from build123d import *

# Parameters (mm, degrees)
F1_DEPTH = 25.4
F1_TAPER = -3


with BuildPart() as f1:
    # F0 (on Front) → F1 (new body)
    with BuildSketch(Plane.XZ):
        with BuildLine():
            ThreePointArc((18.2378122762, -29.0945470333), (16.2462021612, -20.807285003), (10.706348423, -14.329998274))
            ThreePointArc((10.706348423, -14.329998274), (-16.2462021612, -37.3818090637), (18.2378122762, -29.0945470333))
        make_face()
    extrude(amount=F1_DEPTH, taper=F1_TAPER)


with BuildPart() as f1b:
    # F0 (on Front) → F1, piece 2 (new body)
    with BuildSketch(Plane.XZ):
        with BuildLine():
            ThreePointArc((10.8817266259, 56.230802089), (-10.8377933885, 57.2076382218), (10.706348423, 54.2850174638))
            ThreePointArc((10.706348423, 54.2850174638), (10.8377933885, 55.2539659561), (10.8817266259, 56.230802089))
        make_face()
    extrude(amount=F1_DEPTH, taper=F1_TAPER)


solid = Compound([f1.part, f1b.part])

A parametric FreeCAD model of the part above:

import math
import FreeCAD as App
import Part
import Sketcher
Q = App.Units.Quantity

doc = App.newDocument("Part")
body = doc.addObject("PartDesign::Body", "Body")

# Sketch on XZ plane
sketch1 = body.newObject("Sketcher::SketchObject", "Sketch")
sketch1.AttachmentSupport = (doc.getObject("XZ_Plane"), [""])
sketch1.MapMode = "FlatFace"
sketch1.addGeometry(Part.ArcOfCircle(Part.Circle(App.Vector(0, -29.094547, 0), App.Vector(0, 0, 1), 18.237812), math.radians(0), math.radians(54.052673)), False)
sketch1.addGeometry(Part.ArcOfCircle(Part.Circle(App.Vector(0, -29.094547, 0), App.Vector(0, 0, 1), 18.237812), math.radians(54.052673), math.radians(360)), False)
sketch1.addConstraint(Sketcher.Constraint("Tangent", 0, 1, 1, 2))
sketch1.addConstraint(Sketcher.Constraint("Coincident", 1, 1, 0, 2))
sketch1.addConstraint(Sketcher.Constraint("PointOnObject", 0, 3, -2))
sketch1.addConstraint(Sketcher.Constraint("Horizontal", 1, 3, 0, 1))
sketch1.addConstraint(Sketcher.Constraint("Radius", 0, 18.237812))
sketch1.addConstraint(Sketcher.Constraint("DistanceY", 1, 1, -1, 1, 14.329998))
sketch1.addConstraint(Sketcher.Constraint("DistanceX", -1, 1, 1, 1, 10.706348))
pad1 = body.newObject("PartDesign::Pad", "Pad")
pad1.Profile = sketch1
pad1.Length = Q("1 in")
pad1.TaperAngle = 3
body2 = doc.addObject("PartDesign::Body", "Body001")

# Sketch on XZ plane
sketch2 = body2.newObject("Sketcher::SketchObject", "Sketch001")
sketch2.AttachmentSupport = (doc.getObject("XZ_Plane001"), [""])
sketch2.MapMode = "FlatFace"
sketch2.addGeometry(Part.ArcOfCircle(Part.Circle(App.Vector(0, 56.230802, 0), App.Vector(0, 0, 1), 10.881727), math.radians(0), math.radians(349.699423)), False)
sketch2.addGeometry(Part.ArcOfCircle(Part.Circle(App.Vector(0, 56.230802, 0), App.Vector(0, 0, 1), 10.881727), math.radians(-10.300577), math.radians(0)), False)
sketch2.addConstraint(Sketcher.Constraint("Tangent", 0, 1, 1, 2))
sketch2.addConstraint(Sketcher.Constraint("Coincident", 1, 1, 0, 2))
sketch2.addConstraint(Sketcher.Constraint("PointOnObject", 0, 3, -2))
sketch2.addConstraint(Sketcher.Constraint("Horizontal", 1, 3, 0, 1))
sketch2.addConstraint(Sketcher.Constraint("Radius", 0, 10.881727))
sketch2.addConstraint(Sketcher.Constraint("DistanceX", -1, 1, 1, 1, 10.706348))
sketch2.addConstraint(Sketcher.Constraint("DistanceY", -1, 1, 0, 3, 56.230802))
pad2 = body2.newObject("PartDesign::Pad", "Pad001")
pad2.Profile = sketch2
pad2.Length = Q("1 in")
pad2.TaperAngle = 3

doc.recompute()
